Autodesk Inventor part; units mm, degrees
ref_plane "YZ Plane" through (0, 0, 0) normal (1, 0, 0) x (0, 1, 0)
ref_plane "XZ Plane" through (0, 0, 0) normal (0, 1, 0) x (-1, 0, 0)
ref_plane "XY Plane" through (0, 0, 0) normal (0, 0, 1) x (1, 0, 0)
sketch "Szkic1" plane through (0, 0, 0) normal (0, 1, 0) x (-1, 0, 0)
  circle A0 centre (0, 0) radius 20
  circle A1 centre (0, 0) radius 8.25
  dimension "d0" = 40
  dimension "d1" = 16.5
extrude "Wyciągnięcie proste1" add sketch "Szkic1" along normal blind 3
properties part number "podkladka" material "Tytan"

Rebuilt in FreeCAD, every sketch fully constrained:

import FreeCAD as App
import Part
import Sketcher

V = App.Vector
Q = App.Units.Quantity

doc = App.newDocument("Part")
body = doc.addObject("PartDesign::Body", "Body")

# Sketch on XZ plane
sketch1 = doc.addObject("Sketcher::SketchObject", "Sketch")
body.addObject(sketch1)
sketch1.AttachmentSupport = (doc.XZ_Plane, [""])
sketch1.MapMode = "FlatFace"
sketch1.addGeometry([
    Part.Circle(V(0, 0, 0), V(0, 0, 1), 20),
    Part.Circle(V(0, 0, 0), V(0, 0, 1), 8),
], False)
sketch1.addConstraint([
    Sketcher.Constraint("Coincident", 0, 3, -1, 1),
    Sketcher.Constraint("Coincident", 1, 3, -1, 1),
    Sketcher.Constraint("Diameter", 0, Q("40 mm")),
    Sketcher.Constraint("Diameter", 1, Q("16.5 mm")),
])
pad1 = doc.addObject("PartDesign::Pad", "Pad")
body.addObject(pad1)
pad1.Profile = sketch1
pad1.Length = 3
pad1.Reversed = True

doc.recompute()
